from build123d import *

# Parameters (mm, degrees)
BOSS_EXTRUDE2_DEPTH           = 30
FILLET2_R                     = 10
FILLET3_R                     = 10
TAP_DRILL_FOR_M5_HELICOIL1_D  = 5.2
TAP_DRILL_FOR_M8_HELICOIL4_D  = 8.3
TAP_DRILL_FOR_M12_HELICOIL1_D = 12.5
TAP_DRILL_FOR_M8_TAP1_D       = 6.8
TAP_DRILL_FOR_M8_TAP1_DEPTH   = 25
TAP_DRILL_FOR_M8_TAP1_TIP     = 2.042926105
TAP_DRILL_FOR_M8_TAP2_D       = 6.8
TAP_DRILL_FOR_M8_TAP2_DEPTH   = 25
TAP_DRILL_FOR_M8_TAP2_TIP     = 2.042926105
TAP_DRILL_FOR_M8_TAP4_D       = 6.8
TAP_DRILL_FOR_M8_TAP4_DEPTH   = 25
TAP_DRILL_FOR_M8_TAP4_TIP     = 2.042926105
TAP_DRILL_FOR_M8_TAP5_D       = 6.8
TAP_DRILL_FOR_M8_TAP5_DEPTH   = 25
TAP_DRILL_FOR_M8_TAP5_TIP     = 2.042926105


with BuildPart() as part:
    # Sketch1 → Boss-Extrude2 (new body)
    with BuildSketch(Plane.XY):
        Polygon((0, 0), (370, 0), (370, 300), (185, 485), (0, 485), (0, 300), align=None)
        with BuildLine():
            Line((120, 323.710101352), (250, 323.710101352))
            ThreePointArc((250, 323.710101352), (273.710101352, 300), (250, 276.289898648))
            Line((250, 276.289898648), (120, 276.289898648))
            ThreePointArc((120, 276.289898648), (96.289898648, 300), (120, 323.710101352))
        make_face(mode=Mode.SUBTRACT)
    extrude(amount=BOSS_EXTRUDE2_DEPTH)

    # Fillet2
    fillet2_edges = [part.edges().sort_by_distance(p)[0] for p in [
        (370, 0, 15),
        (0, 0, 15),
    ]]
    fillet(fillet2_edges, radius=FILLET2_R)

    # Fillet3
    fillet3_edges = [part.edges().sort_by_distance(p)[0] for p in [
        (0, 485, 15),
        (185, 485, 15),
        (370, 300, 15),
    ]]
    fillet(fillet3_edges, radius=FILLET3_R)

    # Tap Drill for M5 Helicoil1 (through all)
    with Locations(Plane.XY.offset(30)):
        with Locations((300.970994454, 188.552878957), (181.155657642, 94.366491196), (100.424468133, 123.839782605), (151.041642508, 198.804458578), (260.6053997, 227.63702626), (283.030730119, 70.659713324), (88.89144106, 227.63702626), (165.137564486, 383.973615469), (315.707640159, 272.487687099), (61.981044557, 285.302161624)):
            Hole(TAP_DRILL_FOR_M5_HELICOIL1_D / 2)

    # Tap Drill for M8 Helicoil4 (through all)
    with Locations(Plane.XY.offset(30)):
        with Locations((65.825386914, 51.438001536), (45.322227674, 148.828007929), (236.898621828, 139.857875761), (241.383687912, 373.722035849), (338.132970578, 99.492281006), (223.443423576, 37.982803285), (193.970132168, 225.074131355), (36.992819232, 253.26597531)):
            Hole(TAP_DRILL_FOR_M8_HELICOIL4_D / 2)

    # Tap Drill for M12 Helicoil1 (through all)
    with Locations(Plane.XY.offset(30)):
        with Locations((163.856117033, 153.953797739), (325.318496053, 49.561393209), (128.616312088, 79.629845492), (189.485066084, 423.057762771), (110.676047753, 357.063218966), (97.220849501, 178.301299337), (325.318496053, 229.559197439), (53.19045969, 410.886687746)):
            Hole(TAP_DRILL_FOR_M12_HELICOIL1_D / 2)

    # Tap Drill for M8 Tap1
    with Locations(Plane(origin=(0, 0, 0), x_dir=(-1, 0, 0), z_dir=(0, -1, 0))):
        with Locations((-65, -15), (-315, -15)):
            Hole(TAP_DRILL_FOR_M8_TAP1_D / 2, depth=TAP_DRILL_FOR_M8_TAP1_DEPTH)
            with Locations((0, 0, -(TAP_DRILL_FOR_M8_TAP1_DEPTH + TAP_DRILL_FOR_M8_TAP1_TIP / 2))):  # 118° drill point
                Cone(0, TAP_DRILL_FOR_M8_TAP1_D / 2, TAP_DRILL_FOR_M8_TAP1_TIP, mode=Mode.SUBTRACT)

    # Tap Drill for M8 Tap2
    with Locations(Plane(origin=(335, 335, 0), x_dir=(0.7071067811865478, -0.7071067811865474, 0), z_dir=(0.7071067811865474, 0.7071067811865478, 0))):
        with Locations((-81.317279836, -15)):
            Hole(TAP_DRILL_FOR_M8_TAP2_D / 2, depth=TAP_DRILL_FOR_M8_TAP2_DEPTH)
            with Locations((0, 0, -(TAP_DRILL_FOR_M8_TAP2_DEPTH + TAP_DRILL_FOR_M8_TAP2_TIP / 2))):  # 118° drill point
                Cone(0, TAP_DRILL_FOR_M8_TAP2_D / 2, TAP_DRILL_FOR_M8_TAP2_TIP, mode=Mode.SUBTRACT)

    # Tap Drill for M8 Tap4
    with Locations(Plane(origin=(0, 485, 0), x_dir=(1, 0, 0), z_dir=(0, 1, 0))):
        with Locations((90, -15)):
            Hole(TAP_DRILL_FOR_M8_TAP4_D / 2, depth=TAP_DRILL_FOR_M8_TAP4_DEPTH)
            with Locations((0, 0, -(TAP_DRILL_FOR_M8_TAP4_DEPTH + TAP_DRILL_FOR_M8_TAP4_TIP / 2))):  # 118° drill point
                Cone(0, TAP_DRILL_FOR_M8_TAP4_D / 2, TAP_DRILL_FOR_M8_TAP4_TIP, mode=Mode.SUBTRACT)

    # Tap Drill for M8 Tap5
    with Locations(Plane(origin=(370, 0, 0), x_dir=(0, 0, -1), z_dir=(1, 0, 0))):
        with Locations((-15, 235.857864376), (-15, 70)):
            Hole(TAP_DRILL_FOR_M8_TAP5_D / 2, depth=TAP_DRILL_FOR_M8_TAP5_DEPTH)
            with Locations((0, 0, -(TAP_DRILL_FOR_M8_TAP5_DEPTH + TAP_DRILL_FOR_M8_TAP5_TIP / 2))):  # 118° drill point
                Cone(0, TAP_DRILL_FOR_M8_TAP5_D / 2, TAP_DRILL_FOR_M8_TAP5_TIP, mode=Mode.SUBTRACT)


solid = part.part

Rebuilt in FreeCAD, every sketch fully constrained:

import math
import FreeCAD as App
import Part
import Sketcher
from FreeCAD import Vector


def edges_at(feature, points):
    """Names of the edges that pass closest to the given points."""
    edges = feature.Shape.Edges
    near = lambda p: min(range(len(edges)), key=lambda i: edges[i].distToShape(Part.Vertex(*p))[0])
    return sorted({f"Edge{near(p) + 1}" for p in points})

doc = App.newDocument("Part")
body = doc.addObject("PartDesign::Body", "Body")

# Sketch on XY plane
sketch1 = body.newObject("Sketcher::SketchObject", "Sketch")
sketch1.AttachmentSupport = (doc.getObject("XY_Plane"), [""])
sketch1.MapMode = "FlatFace"
sketch1.addGeometry(Part.LineSegment(Vector(0, 0, 0), Vector(370, 0, 0)), False)
sketch1.addGeometry(Part.LineSegment(Vector(370, 0, 0), Vector(370, 300, 0)), False)
sketch1.addGeometry(Part.LineSegment(Vector(370, 300, 0), Vector(185, 485, 0)), False)
sketch1.addGeometry(Part.LineSegment(Vector(185, 485, 0), Vector(0, 485, 0)), False)
sketch1.addGeometry(Part.LineSegment(Vector(0, 485, 0), Vector(0, 0, 0)), False)
sketch1.addGeometry(Part.ArcOfCircle(Part.Circle(Vector(120, 300, 0), Vector(0, 0, 1), 24), math.radians(90), math.radians(270)), False)
sketch1.addGeometry(Part.LineSegment(Vector(120, 324, 0), Vector(250, 324, 0)), False)
sketch1.addGeometry(Part.ArcOfCircle(Part.Circle(Vector(250, 300, 0), Vector(0, 0, 1), 24), math.radians(-90), math.radians(90)), False)
sketch1.addGeometry(Part.LineSegment(Vector(250, 276, 0), Vector(120, 276, 0)), False)
sketch1.addConstraint(Sketcher.Constraint("Coincident", 0, 2, 1, 1))
sketch1.addConstraint(Sketcher.Constraint("Coincident", 1, 2, 2, 1))
sketch1.addConstraint(Sketcher.Constraint("Coincident", 2, 2, 3, 1))
sketch1.addConstraint(Sketcher.Constraint("Coincident", 3, 2, 4, 1))
sketch1.addConstraint(Sketcher.Constraint("Coincident", 4, 2, 0, 1))
sketch1.addConstraint(Sketcher.Constraint("Tangent", 5, 1, 6, 1))
sketch1.addConstraint(Sketcher.Constraint("Tangent", 6, 2, 7, 2))
sketch1.addConstraint(Sketcher.Constraint("Tangent", 7, 1, 8, 1))
sketch1.addConstraint(Sketcher.Constraint("Tangent", 8, 2, 5, 2))
sketch1.addConstraint(Sketcher.Constraint("Horizontal", 0))
sketch1.addConstraint(Sketcher.Constraint("Vertical", 1))
sketch1.addConstraint(Sketcher.Constraint("Horizontal", 3))
sketch1.addConstraint(Sketcher.Constraint("Vertical", 4))
sketch1.addConstraint(Sketcher.Constraint("Horizontal", 6))
sketch1.addConstraint(Sketcher.Constraint("Horizontal", 8))
sketch1.addConstraint(Sketcher.Constraint("Coincident", 4, 2, -1, 1))
sketch1.addConstraint(Sketcher.Constraint("Horizontal", 7, 3, 1, 2))
sketch1.addConstraint(Sketcher.Constraint("DistanceX", 0, 1, 0, 2, 370.0))
sketch1.addConstraint(Sketcher.Constraint("DistanceX", 3, 2, 3, 1, 185.0))
sketch1.addConstraint(Sketcher.Constraint("DistanceX", 6, 1, 6, 2, 130.0))
sketch1.addConstraint(Sketcher.Constraint("DistanceY", 1, 1, 1, 2, 300.0))
sketch1.addConstraint(Sketcher.Constraint("DistanceY", 4, 2, 4, 1, 485.0))
sketch1.addConstraint(Sketcher.Constraint("DistanceX", -1, 1, 5, 3, 120.0))
sketch1.addConstraint(Sketcher.Constraint("Radius", 5, 23.710101))
pad1 = body.newObject("PartDesign::Pad", "Pad")
pad1.Profile = sketch1
pad1.Length = 30
doc.recompute()

fillet = body.newObject("PartDesign::Fillet", "Fillet")
fillet.Base = (pad1, edges_at(pad1, [(370, 0, 15), (0, 0, 15)]))
fillet.Radius = 10
doc.recompute()

fillet2 = body.newObject("PartDesign::Fillet", "Fillet001")
fillet2.Base = (fillet, edges_at(fillet, [(0, 485, 15), (185, 485, 15), (370, 300, 15)]))
fillet2.Radius = 10

# Sketch on XY plane
sketch2 = body.newObject("Sketcher::SketchObject", "Sketch001")
sketch2.AttachmentSupport = (doc.getObject("XY_Plane"), [""])
sketch2.MapMode = "FlatFace"
sketch2.AttachmentOffset = App.Placement(Vector(0, 0, 30), App.Rotation())
sketch2.addGeometry(Part.Circle(Vector(301, 188.6, 0), Vector(0, 0, 1), 2.6), False)
sketch2.addGeometry(Part.Circle(Vector(181.2, 94.4, 0), Vector(0, 0, 1), 2.6), False)
sketch2.addGeometry(Part.Circle(Vector(100.4, 123.8, 0), Vector(0, 0, 1), 2.6), False)
sketch2.addGeometry(Part.Circle(Vector(151, 198.8, 0), Vector(0, 0, 1), 2.6), False)
sketch2.addGeometry(Part.Circle(Vector(260.6, 227.6, 0), Vector(0, 0, 1), 2.6), False)
sketch2.addGeometry(Part.Circle(Vector(283, 70.7, 0), Vector(0, 0, 1), 2.6), False)
sketch2.addGeometry(Part.Circle(Vector(88.9, 227.6, 0), Vector(0, 0, 1), 2.6), False)
sketch2.addGeometry(Part.Circle(Vector(165.1, 384, 0), Vector(0, 0, 1), 2.6), False)
sketch2.addGeometry(Part.Circle(Vector(315.7, 272.5, 0), Vector(0, 0, 1), 2.6), False)
sketch2.addGeometry(Part.Circle(Vector(62, 285.3, 0), Vector(0, 0, 1), 2.6), False)
sketch2.addConstraint(Sketcher.Constraint("Equal", 0, 1))
sketch2.addConstraint(Sketcher.Constraint("Equal", 1, 2))
sketch2.addConstraint(Sketcher.Constraint("Equal", 2, 3))
sketch2.addConstraint(Sketcher.Constraint("Equal", 3, 4))
sketch2.addConstraint(Sketcher.Constraint("Equal", 4, 5))
sketch2.addConstraint(Sketcher.Constraint("Equal", 5, 6))
sketch2.addConstraint(Sketcher.Constraint("Equal", 6, 7))
sketch2.addConstraint(Sketcher.Constraint("Equal", 7, 8))
sketch2.addConstraint(Sketcher.Constraint("Equal", 8, 9))
sketch2.addConstraint(Sketcher.Constraint("Horizontal", 4, 3, 6, 3))
sketch2.addConstraint(Sketcher.Constraint("Diameter", 0, 5.2))
sketch2.addConstraint(Sketcher.Constraint("DistanceX", -1, 1, 4, 3, 260.6054))
sketch2.addConstraint(Sketcher.Constraint("DistanceX", 6, 3, 3, 3, 62.150201))
sketch2.addConstraint(Sketcher.Constraint("DistanceY", -1, 1, 0, 3, 188.552879))
sketch2.addConstraint(Sketcher.Constraint("DistanceY", -1, 1, 1, 3, 94.366491))
sketch2.addConstraint(Sketcher.Constraint("DistanceX", -1, 1, 2, 3, 100.424468))
sketch2.addConstraint(Sketcher.Constraint("DistanceY", -1, 1, 3, 3, 198.804459))
sketch2.addConstraint(Sketcher.Constraint("DistanceX", -1, 1, 5, 3, 283.03073))
sketch2.addConstraint(Sketcher.Constraint("DistanceX", -1, 1, 6, 3, 88.891441))
sketch2.addConstraint(Sketcher.Constraint("DistanceX", -1, 1, 8, 3, 315.70764))
sketch2.addConstraint(Sketcher.Constraint("DistanceY", -1, 1, 9, 3, 285.302162))
sketch2.addConstraint(Sketcher.Constraint("DistanceX", 2, 3, 1, 3, 80.73119))
sketch2.addConstraint(Sketcher.Constraint("DistanceY", 1, 3, 2, 3, 29.473291))
sketch2.addConstraint(Sketcher.Constraint("DistanceX", 3, 3, 0, 3, 149.929352))
sketch2.addConstraint(Sketcher.Constraint("DistanceY", 5, 3, 2, 3, 53.180069))
sketch2.addConstraint(Sketcher.Constraint("DistanceY", 6, 3, 7, 3, 156.336589))
sketch2.addConstraint(Sketcher.Constraint("DistanceX", 3, 3, 7, 3, 14.095922))
sketch2.addConstraint(Sketcher.Constraint("DistanceY", 4, 3, 8, 3, 44.850661))
sketch2.addConstraint(Sketcher.Constraint("DistanceY", 0, 3, 8, 3, 83.934808))
sketch2.addConstraint(Sketcher.Constraint("DistanceX", 9, 3, 7, 3, 103.15652))
doc.recompute()
hole = body.newObject("PartDesign::Hole", "Hole")
hole.Profile = sketch2
hole.ThreadType = "None"
hole.Diameter = 5.2
hole.DepthType = "ThroughAll"

# Sketch on XY plane
sketch3 = body.newObject("Sketcher::SketchObject", "Sketch002")
sketch3.AttachmentSupport = (doc.getObject("XY_Plane"), [""])
sketch3.MapMode = "FlatFace"
sketch3.AttachmentOffset = App.Placement(Vector(0, 0, 30), App.Rotation())
sketch3.addGeometry(Part.Circle(Vector(65.8, 51.4, 0), Vector(0, 0, 1), 4.2), False)
sketch3.addGeometry(Part.Circle(Vector(45.3, 148.8, 0), Vector(0, 0, 1), 4.2), False)
sketch3.addGeometry(Part.Circle(Vector(236.9, 139.9, 0), Vector(0, 0, 1), 4.2), False)
sketch3.addGeometry(Part.Circle(Vector(241.4, 373.7, 0), Vector(0, 0, 1), 4.2), False)
sketch3.addGeometry(Part.Circle(Vector(338.1, 99.5, 0), Vector(0, 0, 1), 4.2), False)
sketch3.addGeometry(Part.Circle(Vector(223.4, 38, 0), Vector(0, 0, 1), 4.2), False)
sketch3.addGeometry(Part.Circle(Vector(194, 225.1, 0), Vector(0, 0, 1), 4.2), False)
sketch3.addGeometry(Part.Circle(Vector(37, 253.3, 0), Vector(0, 0, 1), 4.2), False)
sketch3.addConstraint(Sketcher.Constraint("Equal", 0, 1))
sketch3.addConstraint(Sketcher.Constraint("Equal", 1, 2))
sketch3.addConstraint(Sketcher.Constraint("Equal", 2, 3))
sketch3.addConstraint(Sketcher.Constraint("Equal", 3, 4))
sketch3.addConstraint(Sketcher.Constraint("Equal", 4, 5))
sketch3.addConstraint(Sketcher.Constraint("Equal", 5, 6))
sketch3.addConstraint(Sketcher.Constraint("Equal", 6, 7))
sketch3.addConstraint(Sketcher.Constraint("Diameter", 0, 8.3))
sketch3.addConstraint(Sketcher.Constraint("DistanceY", -1, 1, 0, 3, 51.438002))
sketch3.addConstraint(Sketcher.Constraint("DistanceX", 0, 3, 3, 3, 175.558301))
sketch3.addConstraint(Sketcher.Constraint("DistanceX", 5, 3, 2, 3, 13.455198))
sketch3.addConstraint(Sketcher.Constraint("DistanceY", 5, 3, 0, 3, 13.455198))
sketch3.addConstraint(Sketcher.Constraint("DistanceY", 2, 3, 7, 3, 113.4081))
sketch3.addConstraint(Sketcher.Constraint("DistanceX", -1, 1, 2, 3, 236.898622))
sketch3.addConstraint(Sketcher.Constraint("DistanceX", -1, 1, 4, 3, 338.132971))
sketch3.addConstraint(Sketcher.Constraint("DistanceY", -1, 1, 4, 3, 99.492281))
sketch3.addConstraint(Sketcher.Constraint("DistanceY", -1, 1, 6, 3, 225.074131))
sketch3.addConstraint(Sketcher.Constraint("DistanceX", -1, 1, 7, 3, 36.992819))
sketch3.addConstraint(Sketcher.Constraint("DistanceX", 1, 3, 0, 3, 20.503159))
sketch3.addConstraint(Sketcher.Constraint("DistanceY", 2, 3, 3, 3, 233.86416))
sketch3.addConstraint(Sketcher.Constraint("DistanceX", 6, 3, 2, 3, 42.92849))
sketch3.addConstraint(Sketcher.Constraint("DistanceX", 7, 3, 1, 3, 8.329408))
sketch3.addConstraint(Sketcher.Constraint("DistanceY", -1, 1, 1, 3, 148.828008))
sketch3.addConstraint(Sketcher.Constraint("DistanceY", -1, 1, 2, 3, 139.857876))
doc.recompute()
hole2 = body.newObject("PartDesign::Hole", "Hole001")
hole2.Profile = sketch3
hole2.ThreadType = "None"
hole2.Diameter = 8.3
hole2.DepthType = "ThroughAll"

# Sketch on XY plane
sketch4 = body.newObject("Sketcher::SketchObject", "Sketch003")
sketch4.AttachmentSupport = (doc.getObject("XY_Plane"), [""])
sketch4.MapMode = "FlatFace"
sketch4.AttachmentOffset = App.Placement(Vector(0, 0, 30), App.Rotation())
sketch4.addGeometry(Part.Circle(Vector(164, 154, 0), Vector(0, 0, 1), 6), False)
sketch4.addGeometry(Part.Circle(Vector(325, 50, 0), Vector(0, 0, 1), 6), False)
sketch4.addGeometry(Part.Circle(Vector(129, 80, 0), Vector(0, 0, 1), 6), False)
sketch4.addGeometry(Part.Circle(Vector(189, 423, 0), Vector(0, 0, 1), 6), False)
sketch4.addGeometry(Part.Circle(Vector(111, 357, 0), Vector(0, 0, 1), 6), False)
sketch4.addGeometry(Part.Circle(Vector(97, 178, 0), Vector(0, 0, 1), 6), False)
sketch4.addGeometry(Part.Circle(Vector(325, 230, 0), Vector(0, 0, 1), 6), False)
sketch4.addGeometry(Part.Circle(Vector(53, 411, 0), Vector(0, 0, 1), 6), False)
sketch4.addConstraint(Sketcher.Constraint("Equal", 0, 1))
sketch4.addConstraint(Sketcher.Constraint("Equal", 1, 2))
sketch4.addConstraint(Sketcher.Constraint("Equal", 2, 3))
sketch4.addConstraint(Sketcher.Constraint("Equal", 3, 4))
sketch4.addConstraint(Sketcher.Constraint("Equal", 4, 5))
sketch4.addConstraint(Sketcher.Constraint("Equal", 5, 6))
sketch4.addConstraint(Sketcher.Constraint("Equal", 6, 7))
sketch4.addConstraint(Sketcher.Constraint("Vertical", 1, 3, 6, 3))
sketch4.addConstraint(Sketcher.Constraint("Diameter", 0, 12.5))
sketch4.addConstraint(Sketcher.Constraint("DistanceY", -1, 1, 5, 3, 178.301299))
sketch4.addConstraint(Sketcher.Constraint("DistanceY", 0, 3, 5, 3, 24.347502))
sketch4.addConstraint(Sketcher.Constraint("DistanceX", 5, 3, 4, 3, 13.455198))
sketch4.addConstraint(Sketcher.Constraint("DistanceY", 0, 3, 6, 3, 75.6054))
sketch4.addConstraint(Sketcher.Constraint("DistanceY", -1, 1, 4, 3, 357.063219))
sketch4.addConstraint(Sketcher.Constraint("DistanceX", -1, 1, 5, 3, 97.22085))
sketch4.addConstraint(Sketcher.Constraint("DistanceX", -1, 1, 7, 3, 53.19046))
sketch4.addConstraint(Sketcher.Constraint("DistanceX", 0, 3, 1, 3, 161.462379))
sketch4.addConstraint(Sketcher.Constraint("DistanceX", 0, 3, 3, 3, 25.628949))
sketch4.addConstraint(Sketcher.Constraint("DistanceY", 1, 3, 3, 3, 373.49637))
sketch4.addConstraint(Sketcher.Constraint("DistanceX", 4, 3, 3, 3, 78.809018))
sketch4.addConstraint(Sketcher.Constraint("DistanceY", 2, 3, 6, 3, 149.929352))
sketch4.addConstraint(Sketcher.Constraint("DistanceY", 4, 3, 7, 3, 53.823469))
sketch4.addConstraint(Sketcher.Constraint("DistanceY", -1, 1, 1, 3, 49.561393))
sketch4.addConstraint(Sketcher.Constraint("DistanceX", -1, 1, 2, 3, 128.616312))
doc.recompute()
hole3 = body.newObject("PartDesign::Hole", "Hole002")
hole3.Profile = sketch4
hole3.ThreadType = "None"
hole3.Diameter = 12.5
hole3.DepthType = "ThroughAll"

# Sketch on XZ plane
sketch5 = body.newObject("Sketcher::SketchObject", "Sketch004")
sketch5.AttachmentSupport = (doc.getObject("XZ_Plane"), [""])
sketch5.MapMode = "FlatFace"
sketch5.addGeometry(Part.Circle(Vector(65, 15, 0), Vector(0, 0, 1), 3.4), False)
sketch5.addGeometry(Part.Circle(Vector(315, 15, 0), Vector(0, 0, 1), 3.4), False)
sketch5.addConstraint(Sketcher.Constraint("Equal", 0, 1))
sketch5.addConstraint(Sketcher.Constraint("Horizontal", 0, 3, 1, 3))
sketch5.addConstraint(Sketcher.Constraint("Diameter", 0, 6.8))
sketch5.addConstraint(Sketcher.Constraint("DistanceX", -1, 1, 0, 3, 65.0))
sketch5.addConstraint(Sketcher.Constraint("DistanceY", -1, 1, 0, 3, 15.0))
sketch5.addConstraint(Sketcher.Constraint("DistanceX", -1, 1, 1, 3, 315.0))
doc.recompute()
hole4 = body.newObject("PartDesign::Hole", "Hole003")
hole4.Profile = sketch5
hole4.ThreadType = "None"
hole4.Diameter = 6.8
hole4.DepthType = "Dimension"
hole4.Depth = 25
hole4.DrillPoint = "Angled"
hole4.DrillPointAngle = 118

# Sketch on an angled plane
sketch6 = body.newObject("Sketcher::SketchObject", "Sketch005")
sketch6.Placement = App.Placement(Vector(335, 335, 0), App.Rotation(Vector(0.707106781, -0.707106781, 0), Vector(0, 0, -0.999999999), Vector(0.707106781, 0.707106781, 0), "ZXY"))
sketch6.addGeometry(Part.Circle(Vector(-81.3, -15, 0), Vector(0, 0, 1), 3.4), False)
sketch6.addConstraint(Sketcher.Constraint("Diameter", 0, 6.8))
sketch6.addConstraint(Sketcher.Constraint("DistanceY", 0, 3, -1, 1, 15.0))
sketch6.addConstraint(Sketcher.Constraint("DistanceX", 0, 3, -1, 1, 81.31728))
doc.recompute()
hole5 = body.newObject("PartDesign::Hole", "Hole004")
hole5.Profile = sketch6
hole5.ThreadType = "None"
hole5.Diameter = 6.8
hole5.DepthType = "Dimension"
hole5.Depth = 25
hole5.DrillPoint = "Angled"
hole5.DrillPointAngle = 118

# Sketch on XZ plane
sketch7 = body.newObject("Sketcher::SketchObject", "Sketch006")
sketch7.AttachmentSupport = (doc.getObject("XZ_Plane"), [""])
sketch7.MapMode = "FlatFace"
sketch7.AttachmentOffset = App.Placement(Vector(0, 0, -485), App.Rotation())
sketch7.addGeometry(Part.Circle(Vector(90, 15, 0), Vector(0, 0, 1), 3.4), False)
sketch7.addConstraint(Sketcher.Constraint("Diameter", 0, 6.8))
sketch7.addConstraint(Sketcher.Constraint("DistanceX", -1, 1, 0, 3, 90.0))
sketch7.addConstraint(Sketcher.Constraint("DistanceY", -1, 1, 0, 3, 15.0))
doc.recompute()
hole6 = body.newObject("PartDesign::Hole", "Hole005")
hole6.Profile = sketch7
hole6.ThreadType = "None"
hole6.Diameter = 6.8
hole6.DepthType = "Dimension"
hole6.Depth = 25
hole6.DrillPoint = "Angled"
hole6.DrillPointAngle = 118
hole6.Reversed = True

# Sketch on YZ plane
sketch8 = body.newObject("Sketcher::SketchObject", "Sketch007")
sketch8.AttachmentSupport = (doc.getObject("YZ_Plane"), [""])
sketch8.MapMode = "FlatFace"
sketch8.AttachmentOffset = App.Placement(Vector(0, 0, 370), App.Rotation())
sketch8.addGeometry(Part.Circle(Vector(235.9, 15, 0), Vector(0, 0, 1), 3.4), False)
sketch8.addGeometry(Part.Circle(Vector(70, 15, 0), Vector(0, 0, 1), 3.4), False)
sketch8.addConstraint(Sketcher.Constraint("Equal", 0, 1))
sketch8.addConstraint(Sketcher.Constraint("Horizontal", 0, 3, 1, 3))
sketch8.addConstraint(Sketcher.Constraint("Diameter", 0, 6.8))
sketch8.addConstraint(Sketcher.Constraint("DistanceY", -1, 1, 0, 3, 15.0))
sketch8.addConstraint(Sketcher.Constraint("DistanceX", -1, 1, 1, 3, 70.0))
sketch8.addConstraint(Sketcher.Constraint("DistanceX", -1, 1, 0, 3, 235.857864))
doc.recompute()
hole7 = body.newObject("PartDesign::Hole", "Hole006")
hole7.Profile = sketch8
hole7.ThreadType = "None"
hole7.Diameter = 6.8
hole7.DepthType = "Dimension"
hole7.Depth = 25
hole7.DrillPoint = "Angled"
hole7.DrillPointAngle = 118

doc.recompute()
